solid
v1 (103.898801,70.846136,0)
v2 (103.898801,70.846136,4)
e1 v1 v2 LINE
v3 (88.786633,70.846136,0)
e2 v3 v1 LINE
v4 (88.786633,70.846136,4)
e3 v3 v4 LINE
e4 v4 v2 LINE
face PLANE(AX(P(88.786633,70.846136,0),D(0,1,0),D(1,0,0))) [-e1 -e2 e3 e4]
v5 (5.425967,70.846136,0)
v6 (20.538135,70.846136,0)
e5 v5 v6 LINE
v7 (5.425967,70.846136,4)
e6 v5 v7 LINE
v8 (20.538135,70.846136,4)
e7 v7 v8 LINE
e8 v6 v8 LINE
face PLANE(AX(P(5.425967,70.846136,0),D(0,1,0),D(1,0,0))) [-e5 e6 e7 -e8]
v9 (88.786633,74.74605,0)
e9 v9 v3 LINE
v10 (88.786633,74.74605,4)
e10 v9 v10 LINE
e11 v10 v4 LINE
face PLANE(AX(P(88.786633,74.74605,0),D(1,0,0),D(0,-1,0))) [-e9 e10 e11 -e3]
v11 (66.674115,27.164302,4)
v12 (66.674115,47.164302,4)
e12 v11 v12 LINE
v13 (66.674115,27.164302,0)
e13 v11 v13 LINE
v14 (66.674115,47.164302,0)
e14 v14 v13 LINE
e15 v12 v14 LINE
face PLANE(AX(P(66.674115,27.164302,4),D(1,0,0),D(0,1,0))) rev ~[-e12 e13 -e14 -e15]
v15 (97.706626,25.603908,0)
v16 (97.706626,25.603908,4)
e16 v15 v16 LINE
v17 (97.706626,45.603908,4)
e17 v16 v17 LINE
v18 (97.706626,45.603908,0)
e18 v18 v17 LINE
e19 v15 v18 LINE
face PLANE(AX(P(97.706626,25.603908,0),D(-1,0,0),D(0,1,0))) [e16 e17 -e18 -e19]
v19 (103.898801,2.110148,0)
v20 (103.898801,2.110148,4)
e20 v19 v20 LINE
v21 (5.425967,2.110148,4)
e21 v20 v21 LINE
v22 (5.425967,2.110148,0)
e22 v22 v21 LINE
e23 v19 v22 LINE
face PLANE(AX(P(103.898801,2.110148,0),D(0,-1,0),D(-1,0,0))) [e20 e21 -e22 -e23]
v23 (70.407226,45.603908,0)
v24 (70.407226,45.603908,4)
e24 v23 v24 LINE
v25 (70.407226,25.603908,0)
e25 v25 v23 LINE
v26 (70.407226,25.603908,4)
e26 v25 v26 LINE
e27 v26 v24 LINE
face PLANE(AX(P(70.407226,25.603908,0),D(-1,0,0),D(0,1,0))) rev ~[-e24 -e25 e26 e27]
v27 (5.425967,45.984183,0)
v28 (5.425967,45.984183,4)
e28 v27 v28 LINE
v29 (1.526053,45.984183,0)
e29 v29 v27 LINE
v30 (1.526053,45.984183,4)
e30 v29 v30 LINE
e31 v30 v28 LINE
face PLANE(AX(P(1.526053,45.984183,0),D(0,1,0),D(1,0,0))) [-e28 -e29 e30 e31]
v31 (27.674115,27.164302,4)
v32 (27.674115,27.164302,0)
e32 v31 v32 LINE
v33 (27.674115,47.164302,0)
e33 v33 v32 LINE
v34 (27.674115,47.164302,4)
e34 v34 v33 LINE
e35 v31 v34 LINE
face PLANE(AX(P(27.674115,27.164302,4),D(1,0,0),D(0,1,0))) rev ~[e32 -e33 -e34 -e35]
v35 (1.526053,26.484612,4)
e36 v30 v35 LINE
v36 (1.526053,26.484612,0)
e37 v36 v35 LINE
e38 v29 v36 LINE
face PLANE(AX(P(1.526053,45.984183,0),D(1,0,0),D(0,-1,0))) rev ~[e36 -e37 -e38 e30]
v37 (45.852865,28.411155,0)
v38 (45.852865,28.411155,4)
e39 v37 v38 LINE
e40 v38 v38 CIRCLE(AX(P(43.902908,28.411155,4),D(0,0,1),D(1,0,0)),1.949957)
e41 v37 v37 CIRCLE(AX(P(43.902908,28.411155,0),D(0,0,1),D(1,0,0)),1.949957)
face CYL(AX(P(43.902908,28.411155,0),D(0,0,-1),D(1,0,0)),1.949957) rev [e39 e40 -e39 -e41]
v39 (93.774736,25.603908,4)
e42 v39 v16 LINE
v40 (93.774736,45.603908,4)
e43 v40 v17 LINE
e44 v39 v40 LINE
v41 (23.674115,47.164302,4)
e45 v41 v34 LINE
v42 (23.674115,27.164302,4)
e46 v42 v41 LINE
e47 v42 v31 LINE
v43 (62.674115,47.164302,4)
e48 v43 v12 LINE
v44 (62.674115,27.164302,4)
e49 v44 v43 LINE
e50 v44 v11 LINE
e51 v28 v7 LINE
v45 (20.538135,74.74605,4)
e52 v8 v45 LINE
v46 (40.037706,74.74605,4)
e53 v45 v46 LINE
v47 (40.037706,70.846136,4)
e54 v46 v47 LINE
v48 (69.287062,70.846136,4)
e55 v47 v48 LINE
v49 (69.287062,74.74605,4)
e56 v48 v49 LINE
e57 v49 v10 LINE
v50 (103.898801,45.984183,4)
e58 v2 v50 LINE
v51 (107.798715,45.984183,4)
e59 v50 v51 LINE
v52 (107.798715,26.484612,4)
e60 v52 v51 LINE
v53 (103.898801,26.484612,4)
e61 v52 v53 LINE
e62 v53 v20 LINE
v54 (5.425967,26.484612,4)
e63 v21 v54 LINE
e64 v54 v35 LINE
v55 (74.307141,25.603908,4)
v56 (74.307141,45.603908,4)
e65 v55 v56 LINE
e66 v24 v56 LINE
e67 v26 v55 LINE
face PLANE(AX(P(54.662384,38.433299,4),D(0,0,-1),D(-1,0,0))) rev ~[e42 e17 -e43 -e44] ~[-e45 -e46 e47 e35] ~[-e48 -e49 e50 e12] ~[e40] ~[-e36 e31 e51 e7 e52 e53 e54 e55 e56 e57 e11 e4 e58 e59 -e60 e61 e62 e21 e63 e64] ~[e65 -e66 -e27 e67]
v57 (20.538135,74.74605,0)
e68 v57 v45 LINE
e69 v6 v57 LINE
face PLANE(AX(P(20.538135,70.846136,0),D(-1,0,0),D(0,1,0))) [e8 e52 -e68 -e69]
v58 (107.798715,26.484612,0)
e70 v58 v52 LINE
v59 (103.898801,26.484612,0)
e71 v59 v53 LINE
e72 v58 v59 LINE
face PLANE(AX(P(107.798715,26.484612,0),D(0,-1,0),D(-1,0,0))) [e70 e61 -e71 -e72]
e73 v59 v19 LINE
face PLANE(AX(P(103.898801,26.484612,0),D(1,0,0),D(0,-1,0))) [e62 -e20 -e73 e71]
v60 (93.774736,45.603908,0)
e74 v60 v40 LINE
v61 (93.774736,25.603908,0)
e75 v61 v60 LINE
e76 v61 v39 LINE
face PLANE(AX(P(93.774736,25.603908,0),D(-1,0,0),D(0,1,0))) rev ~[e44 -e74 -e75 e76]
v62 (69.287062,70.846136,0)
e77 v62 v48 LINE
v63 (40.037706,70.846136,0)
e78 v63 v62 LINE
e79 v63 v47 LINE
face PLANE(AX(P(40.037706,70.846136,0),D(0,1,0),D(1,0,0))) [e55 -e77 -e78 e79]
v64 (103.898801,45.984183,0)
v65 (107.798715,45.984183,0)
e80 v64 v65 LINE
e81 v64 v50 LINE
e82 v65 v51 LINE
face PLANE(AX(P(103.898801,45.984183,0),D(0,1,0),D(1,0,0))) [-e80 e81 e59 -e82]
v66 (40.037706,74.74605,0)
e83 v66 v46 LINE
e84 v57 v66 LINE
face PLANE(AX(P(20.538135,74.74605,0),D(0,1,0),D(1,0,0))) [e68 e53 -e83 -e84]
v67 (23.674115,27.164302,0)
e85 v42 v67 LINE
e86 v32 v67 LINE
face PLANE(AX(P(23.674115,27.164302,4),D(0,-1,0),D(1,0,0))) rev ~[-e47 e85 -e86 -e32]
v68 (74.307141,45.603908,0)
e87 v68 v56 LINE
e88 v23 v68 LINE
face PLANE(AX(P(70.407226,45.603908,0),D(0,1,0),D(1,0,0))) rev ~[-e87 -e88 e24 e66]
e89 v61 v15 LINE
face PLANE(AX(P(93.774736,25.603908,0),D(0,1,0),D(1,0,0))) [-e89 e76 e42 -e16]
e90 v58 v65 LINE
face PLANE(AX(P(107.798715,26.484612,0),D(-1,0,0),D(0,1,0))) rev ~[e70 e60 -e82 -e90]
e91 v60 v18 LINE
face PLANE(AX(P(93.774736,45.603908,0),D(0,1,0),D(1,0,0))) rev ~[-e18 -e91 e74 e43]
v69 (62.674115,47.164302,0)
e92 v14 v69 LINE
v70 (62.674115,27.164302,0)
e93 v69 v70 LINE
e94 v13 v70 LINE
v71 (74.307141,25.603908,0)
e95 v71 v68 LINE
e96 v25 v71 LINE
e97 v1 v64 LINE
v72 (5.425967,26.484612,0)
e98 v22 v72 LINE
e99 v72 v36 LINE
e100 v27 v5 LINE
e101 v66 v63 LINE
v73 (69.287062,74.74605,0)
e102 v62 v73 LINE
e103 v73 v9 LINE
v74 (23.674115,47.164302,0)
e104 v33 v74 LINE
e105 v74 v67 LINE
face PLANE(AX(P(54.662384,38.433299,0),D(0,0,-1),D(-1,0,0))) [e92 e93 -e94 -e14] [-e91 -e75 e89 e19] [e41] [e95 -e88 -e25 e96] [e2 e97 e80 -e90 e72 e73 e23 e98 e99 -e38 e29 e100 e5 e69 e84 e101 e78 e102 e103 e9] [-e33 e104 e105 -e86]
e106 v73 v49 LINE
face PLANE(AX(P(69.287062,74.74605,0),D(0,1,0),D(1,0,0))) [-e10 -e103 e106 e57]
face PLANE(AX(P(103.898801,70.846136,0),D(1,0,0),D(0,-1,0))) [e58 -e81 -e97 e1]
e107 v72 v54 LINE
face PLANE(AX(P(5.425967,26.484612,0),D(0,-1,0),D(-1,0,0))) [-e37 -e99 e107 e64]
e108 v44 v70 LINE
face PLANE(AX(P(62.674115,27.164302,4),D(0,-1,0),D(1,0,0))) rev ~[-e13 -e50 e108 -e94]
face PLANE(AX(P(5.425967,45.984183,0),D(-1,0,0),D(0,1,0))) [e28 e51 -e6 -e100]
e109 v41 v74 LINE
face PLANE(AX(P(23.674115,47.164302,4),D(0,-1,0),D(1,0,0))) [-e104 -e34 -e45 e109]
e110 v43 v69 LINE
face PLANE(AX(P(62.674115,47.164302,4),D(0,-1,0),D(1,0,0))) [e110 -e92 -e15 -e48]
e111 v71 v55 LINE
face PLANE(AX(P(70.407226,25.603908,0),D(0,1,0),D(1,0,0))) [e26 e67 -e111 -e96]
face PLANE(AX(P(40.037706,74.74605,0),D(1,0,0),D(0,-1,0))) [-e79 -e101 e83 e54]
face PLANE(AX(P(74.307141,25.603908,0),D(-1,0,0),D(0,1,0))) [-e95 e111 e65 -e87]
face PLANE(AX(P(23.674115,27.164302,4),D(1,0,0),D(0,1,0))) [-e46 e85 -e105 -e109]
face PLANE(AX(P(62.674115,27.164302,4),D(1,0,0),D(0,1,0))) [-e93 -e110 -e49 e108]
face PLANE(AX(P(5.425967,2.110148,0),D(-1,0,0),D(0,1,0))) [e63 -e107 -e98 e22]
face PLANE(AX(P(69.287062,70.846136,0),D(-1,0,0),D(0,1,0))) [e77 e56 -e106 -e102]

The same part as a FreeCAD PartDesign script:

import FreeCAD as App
import Part
import Sketcher

V = App.Vector
Q = App.Units.Quantity

doc = App.newDocument("Part")
body = doc.addObject("PartDesign::Body", "Body")

# Sketch on XY plane
sketch1 = body.newObject("Sketcher::SketchObject", "Sketch")
sketch1.AttachmentSupport = (doc.getObject("XY_Plane"), [""])
sketch1.MapMode = "FlatFace"
sketch1.addGeometry([
    Part.LineSegment(V(1.5, 46, 0), V(1.5, 26.5, 0)),  # 0
    Part.LineSegment(V(1.5, 26.5, 0), V(5.4, 26.5, 0)),  # 1
    Part.LineSegment(V(5.4, 26.5, 0), V(5.4, 2.1, 0)),  # 2
    Part.LineSegment(V(5.4, 2.1, 0), V(103.9, 2.1, 0)),  # 3
    Part.LineSegment(V(103.9, 2.1, 0), V(103.9, 26.5, 0)),  # 4
    Part.LineSegment(V(103.9, 26.5, 0), V(107.8, 26.5, 0)),  # 5
    Part.LineSegment(V(107.8, 26.5, 0), V(107.8, 46, 0)),  # 6
    Part.LineSegment(V(107.8, 46, 0), V(103.9, 46, 0)),  # 7
    Part.LineSegment(V(103.9, 46, 0), V(103.9, 70.8, 0)),  # 8
    Part.LineSegment(V(103.9, 70.8, 0), V(88.8, 70.8, 0)),  # 9
    Part.LineSegment(V(88.8, 70.8, 0), V(88.8, 74.7, 0)),  # 10
    Part.LineSegment(V(88.8, 74.7, 0), V(69.3, 74.7, 0)),  # 11
    Part.LineSegment(V(69.3, 74.7, 0), V(69.3, 70.8, 0)),  # 12
    Part.LineSegment(V(69.3, 70.8, 0), V(40, 70.8, 0)),  # 13
    Part.LineSegment(V(40, 70.8, 0), V(40, 74.7, 0)),  # 14
    Part.LineSegment(V(40, 74.7, 0), V(20.5, 74.7, 0)),  # 15
    Part.LineSegment(V(20.5, 74.7, 0), V(20.5, 70.8, 0)),  # 16
    Part.LineSegment(V(20.5, 70.8, 0), V(5.4, 70.8, 0)),  # 17
    Part.LineSegment(V(5.4, 70.8, 0), V(5.4, 46, 0)),  # 18
    Part.LineSegment(V(5.4, 46, 0), V(1.5, 46, 0)),  # 19
    Part.Circle(V(43.9, 28.4, 0), V(0, 0, 1), 1.9),  # 20
    Part.LineSegment(V(93.8, 25.6, 0), V(93.8, 45.6, 0)),  # 21
    Part.LineSegment(V(93.8, 45.6, 0), V(97.7, 45.6, 0)),  # 22
    Part.LineSegment(V(97.7, 45.6, 0), V(97.7, 25.6, 0)),  # 23
    Part.LineSegment(V(97.7, 25.6, 0), V(93.8, 25.6, 0)),  # 24
    Part.LineSegment(V(70.4, 25.6, 0), V(70.4, 45.6, 0)),  # 25
    Part.LineSegment(V(70.4, 45.6, 0), V(74.3, 45.6, 0)),  # 26
    Part.LineSegment(V(74.3, 45.6, 0), V(74.3, 25.6, 0)),  # 27
    Part.LineSegment(V(74.3, 25.6, 0), V(70.4, 25.6, 0)),  # 28
], False)
sketch1.addConstraint([
    Sketcher.Constraint("Coincident", 0, 2, 1, 1),
    Sketcher.Constraint("Coincident", 1, 2, 2, 1),
    Sketcher.Constraint("Coincident", 2, 2, 3, 1),
    Sketcher.Constraint("Coincident", 3, 2, 4, 1),
    Sketcher.Constraint("Coincident", 4, 2, 5, 1),
    Sketcher.Constraint("Coincident", 5, 2, 6, 1),
    Sketcher.Constraint("Coincident", 6, 2, 7, 1),
    Sketcher.Constraint("Coincident", 7, 2, 8, 1),
    Sketcher.Constraint("Coincident", 8, 2, 9, 1),
    Sketcher.Constraint("Coincident", 9, 2, 10, 1),
    Sketcher.Constraint("Coincident", 10, 2, 11, 1),
    Sketcher.Constraint("Coincident", 11, 2, 12, 1),
    Sketcher.Constraint("Coincident", 12, 2, 13, 1),
    Sketcher.Constraint("Coincident", 13, 2, 14, 1),
    Sketcher.Constraint("Coincident", 14, 2, 15, 1),
    Sketcher.Constraint("Coincident", 15, 2, 16, 1),
    Sketcher.Constraint("Coincident", 16, 2, 17, 1),
    Sketcher.Constraint("Coincident", 17, 2, 18, 1),
    Sketcher.Constraint("Coincident", 18, 2, 19, 1),
    Sketcher.Constraint("Coincident", 19, 2, 0, 1),
    Sketcher.Constraint("Coincident", 21, 2, 22, 1),
    Sketcher.Constraint("Coincident", 22, 2, 23, 1),
    Sketcher.Constraint("Coincident", 23, 2, 24, 1),
    Sketcher.Constraint("Coincident", 24, 2, 21, 1),
    Sketcher.Constraint("Coincident", 25, 2, 26, 1),
    Sketcher.Constraint("Coincident", 26, 2, 27, 1),
    Sketcher.Constraint("Coincident", 27, 2, 28, 1),
    Sketcher.Constraint("Coincident", 28, 2, 25, 1),
    Sketcher.Constraint("Vertical", 0),
    Sketcher.Constraint("Horizontal", 1),
    Sketcher.Constraint("Vertical", 2),
    Sketcher.Constraint("Horizontal", 3),
    Sketcher.Constraint("Vertical", 4),
    Sketcher.Constraint("Horizontal", 5),
    Sketcher.Constraint("Vertical", 6),
    Sketcher.Constraint("Horizontal", 7),
    Sketcher.Constraint("Vertical", 8),
    Sketcher.Constraint("Horizontal", 9),
    Sketcher.Constraint("Vertical", 10),
    Sketcher.Constraint("Horizontal", 11),
    Sketcher.Constraint("Vertical", 12),
    Sketcher.Constraint("Horizontal", 13),
    Sketcher.Constraint("Vertical", 14),
    Sketcher.Constraint("Horizontal", 15),
    Sketcher.Constraint("Vertical", 16),
    Sketcher.Constraint("Horizontal", 17),
    Sketcher.Constraint("Vertical", 18),
    Sketcher.Constraint("Horizontal", 19),
    Sketcher.Constraint("Vertical", 21),
    Sketcher.Constraint("Horizontal", 22),
    Sketcher.Constraint("Vertical", 23),
    Sketcher.Constraint("Horizontal", 24),
    Sketcher.Constraint("Vertical", 25),
    Sketcher.Constraint("Horizontal", 26),
    Sketcher.Constraint("Vertical", 27),
    Sketcher.Constraint("Horizontal", 28),
    Sketcher.Constraint("Horizontal", 1, 2, 4, 2),
    Sketcher.Constraint("Horizontal", 9, 2, 12, 2),
    Sketcher.Constraint("Horizontal", 11, 2, 14, 2),
    Sketcher.Constraint("Horizontal", 13, 2, 16, 2),
    Sketcher.Constraint("Horizontal", 7, 2, 18, 2),
    Sketcher.Constraint("Horizontal", 22, 2, 25, 2),
    Sketcher.Constraint("Horizontal", 24, 2, 27, 2),
    Sketcher.Constraint("Vertical", 4, 2, 7, 2),
    Sketcher.Constraint("Vertical", 2, 2, 17, 2),
    Sketcher.Constraint("Equal", 1, 5),
    Sketcher.Constraint("Equal", 11, 15),
    Sketcher.Constraint("Equal", 9, 17),
    Sketcher.Constraint("Equal", 19, 26),
    Sketcher.Constraint("Equal", 15, 0),
    Sketcher.Constraint("Equal", 28, 10),
    Sketcher.Constraint("DistanceY", 21, 1, 21, 2, Q("20 mm")),
    Sketcher.Constraint("Diameter", 20, Q("3.899914 mm")),
    Sketcher.Constraint("DistanceX", 11, 2, 11, 1, Q("19.499571 mm")),
    Sketcher.Constraint("DistanceX", 22, 1, 22, 2, Q("3.93189 mm")),
    Sketcher.Constraint("DistanceX", -1, 1, 3, 2, Q("103.898801 mm")),
    Sketcher.Constraint("DistanceX", 13, 2, 20, 3, Q("3.865202 mm")),
    Sketcher.Constraint("DistanceX", 25, 2, 22, 2, Q("27.299399 mm")),
    Sketcher.Constraint("DistanceX", 1, 1, 1, 2, Q("3.899914 mm")),
    Sketcher.Constraint("DistanceX", 3, 1, 3, 2, Q("98.472833 mm")),
    Sketcher.Constraint("DistanceX", 9, 2, 9, 1, Q("15.112167 mm")),
    Sketcher.Constraint("DistanceY", 2, 2, 2, 1, Q("24.374464 mm")),
    Sketcher.Constraint("DistanceY", 8, 1, 8, 2, Q("24.861953 mm")),
    Sketcher.Constraint("DistanceY", -1, 1, 2, 2, Q("2.110148 mm")),
    Sketcher.Constraint("DistanceY", -1, 1, 21, 2, Q("45.603908 mm")),
    Sketcher.Constraint("DistanceX", -1, 1, 26, 2, Q("74.307141 mm")),
    Sketcher.Constraint("DistanceY", 20, 3, 6, 2, Q("17.573028 mm")),
])
pad1 = body.newObject("PartDesign::Pad", "Pad")
pad1.Profile = sketch1
pad1.Length = 4

# Sketch on XY plane
sketch2 = body.newObject("Sketcher::SketchObject", "Sketch001")
sketch2.AttachmentSupport = (doc.getObject("XY_Plane"), [""])
sketch2.MapMode = "FlatFace"
sketch2.AttachmentOffset = App.Placement(V(0, 0, 4), App.Rotation())
sketch2.addGeometry([
    Part.LineSegment(V(62.7, 47.2, 0), V(62.7, 27.2, 0)),  # 0
    Part.LineSegment(V(62.7, 27.2, 0), V(66.7, 27.2, 0)),  # 1
    Part.LineSegment(V(66.7, 27.2, 0), V(66.7, 47.2, 0)),  # 2
    Part.LineSegment(V(66.7, 47.2, 0), V(62.7, 47.2, 0)),  # 3
    Part.LineSegment(V(23.7, 47.2, 0), V(23.7, 27.2, 0)),  # 4
    Part.LineSegment(V(23.7, 27.2, 0), V(27.7, 27.2, 0)),  # 5
    Part.LineSegment(V(27.7, 27.2, 0), V(27.7, 47.2, 0)),  # 6
    Part.LineSegment(V(27.7, 47.2, 0), V(23.7, 47.2, 0)),  # 7
], False)
sketch2.addConstraint([
    Sketcher.Constraint("Coincident", 0, 2, 1, 1),
    Sketcher.Constraint("Coincident", 1, 2, 2, 1),
    Sketcher.Constraint("Coincident", 2, 2, 3, 1),
    Sketcher.Constraint("Coincident", 3, 2, 0, 1),
    Sketcher.Constraint("Coincident", 4, 2, 5, 1),
    Sketcher.Constraint("Coincident", 5, 2, 6, 1),
    Sketcher.Constraint("Coincident", 6, 2, 7, 1),
    Sketcher.Constraint("Coincident", 7, 2, 4, 1),
    Sketcher.Constraint("Vertical", 0),
    Sketcher.Constraint("Horizontal", 1),
    Sketcher.Constraint("Vertical", 2),
    Sketcher.Constraint("Horizontal", 3),
    Sketcher.Constraint("Vertical", 4),
    Sketcher.Constraint("Horizontal", 5),
    Sketcher.Constraint("Vertical", 6),
    Sketcher.Constraint("Horizontal", 7),
    Sketcher.Constraint("Horizontal", 1, 2, 4, 2),
    Sketcher.Constraint("Horizontal", 3, 2, 6, 2),
    Sketcher.Constraint("Equal", 3, 5),
    Sketcher.Constraint("DistanceX", 1, 1, 1, 2, Q("4 mm")),
    Sketcher.Constraint("DistanceY", 0, 2, 0, 1, Q("20 mm")),
    Sketcher.Constraint("DistanceX", 4, 2, 0, 2, Q("39 mm")),
    Sketcher.Constraint("DistanceX", -1, 1, 0, 2, Q("62.674115 mm")),
    Sketcher.Constraint("DistanceY", -1, 1, 0, 2, Q("27.164302 mm")),
])
pocket1 = body.newObject("PartDesign::Pocket", "Pocket")
pocket1.Profile = sketch2
pocket1.Length = 18

doc.recompute()
